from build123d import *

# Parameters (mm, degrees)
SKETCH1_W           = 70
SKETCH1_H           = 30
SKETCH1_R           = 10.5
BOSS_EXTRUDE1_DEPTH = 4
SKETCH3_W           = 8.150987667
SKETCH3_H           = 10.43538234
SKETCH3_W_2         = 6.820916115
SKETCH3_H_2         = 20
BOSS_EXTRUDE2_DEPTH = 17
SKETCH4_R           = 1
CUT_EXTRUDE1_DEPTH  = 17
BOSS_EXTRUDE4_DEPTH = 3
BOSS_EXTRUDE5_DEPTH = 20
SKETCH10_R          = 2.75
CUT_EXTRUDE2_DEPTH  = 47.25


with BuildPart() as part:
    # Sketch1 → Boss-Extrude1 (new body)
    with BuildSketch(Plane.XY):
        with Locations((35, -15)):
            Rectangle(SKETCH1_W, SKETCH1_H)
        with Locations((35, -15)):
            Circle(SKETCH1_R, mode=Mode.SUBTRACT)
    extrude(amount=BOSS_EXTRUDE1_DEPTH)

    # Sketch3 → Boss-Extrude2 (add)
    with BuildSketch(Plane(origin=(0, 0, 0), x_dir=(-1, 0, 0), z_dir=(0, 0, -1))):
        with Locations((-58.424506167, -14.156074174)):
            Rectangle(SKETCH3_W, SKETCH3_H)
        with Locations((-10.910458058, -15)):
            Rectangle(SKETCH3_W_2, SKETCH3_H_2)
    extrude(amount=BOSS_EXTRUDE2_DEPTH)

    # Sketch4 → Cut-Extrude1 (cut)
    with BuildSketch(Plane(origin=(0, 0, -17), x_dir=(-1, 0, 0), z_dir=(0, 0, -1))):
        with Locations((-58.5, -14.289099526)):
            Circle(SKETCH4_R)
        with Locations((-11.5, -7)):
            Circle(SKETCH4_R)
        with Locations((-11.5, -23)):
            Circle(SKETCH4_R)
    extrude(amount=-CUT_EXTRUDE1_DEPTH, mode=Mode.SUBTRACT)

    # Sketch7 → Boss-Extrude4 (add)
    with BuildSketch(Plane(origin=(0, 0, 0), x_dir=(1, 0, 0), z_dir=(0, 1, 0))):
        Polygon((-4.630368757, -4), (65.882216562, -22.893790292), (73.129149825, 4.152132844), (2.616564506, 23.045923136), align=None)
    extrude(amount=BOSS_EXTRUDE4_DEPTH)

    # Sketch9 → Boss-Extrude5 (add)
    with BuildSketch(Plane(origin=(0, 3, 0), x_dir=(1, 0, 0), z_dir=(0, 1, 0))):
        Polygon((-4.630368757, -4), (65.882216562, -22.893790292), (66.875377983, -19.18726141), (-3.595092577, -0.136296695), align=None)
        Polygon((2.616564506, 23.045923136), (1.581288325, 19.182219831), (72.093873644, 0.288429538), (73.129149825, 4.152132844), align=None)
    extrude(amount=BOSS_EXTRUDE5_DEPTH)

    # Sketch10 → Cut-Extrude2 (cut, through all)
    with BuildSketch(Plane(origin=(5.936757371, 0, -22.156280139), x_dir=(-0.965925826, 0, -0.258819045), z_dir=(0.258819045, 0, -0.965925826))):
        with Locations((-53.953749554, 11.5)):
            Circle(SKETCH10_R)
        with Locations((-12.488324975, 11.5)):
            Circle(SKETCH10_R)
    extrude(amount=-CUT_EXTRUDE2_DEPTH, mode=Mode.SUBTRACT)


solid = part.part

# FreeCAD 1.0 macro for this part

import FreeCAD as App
import Part
import Sketcher
Q = App.Units.Quantity


def add_polygon(sketch, points):
    """Adds a closed chain of lines whose ends are joined by coincident constraints."""
    first, n = sketch.GeometryCount, len(points)
    for a, b in zip(points, points[1:] + points[:1]):
        sketch.addGeometry(Part.LineSegment(App.Vector(*a, 0), App.Vector(*b, 0)), False)
    for i in range(n):
        sketch.addConstraint(Sketcher.Constraint("Coincident", first + i, 2, first + (i + 1) % n, 1))

doc = App.newDocument("Part")
body = doc.addObject("PartDesign::Body", "Body")

# Sketch on XY plane
sketch1 = body.newObject("Sketcher::SketchObject", "Sketch")
sketch1.AttachmentSupport = (doc.getObject("XY_Plane"), [""])
sketch1.MapMode = "FlatFace"
add_polygon(sketch1, [(0, 0), (0, -30), (70, -30), (70, 0)])  # lines 0-3
sketch1.addGeometry(Part.Circle(App.Vector(35, -15, 0), App.Vector(0, 0, 1), 10.5), False)  # 4
sketch1.addConstraint([
    Sketcher.Constraint("Vertical", 0),
    Sketcher.Constraint("Horizontal", 1),
    Sketcher.Constraint("Vertical", 2),
    Sketcher.Constraint("Horizontal", 3),
    Sketcher.Constraint("Coincident", 3, 2, -1, 1),
    Sketcher.Constraint("Diameter", 4, Q("21 mm")),
    Sketcher.Constraint("DistanceX", 1, 1, 1, 2, Q("70 mm")),
    Sketcher.Constraint("DistanceY", 0, 2, 0, 1, Q("30 mm")),
    Sketcher.Constraint("DistanceX", -1, 1, 4, 3, Q("35 mm")),
    Sketcher.Constraint("DistanceY", 4, 3, -1, 1, Q("15 mm")),
])
pad1 = body.newObject("PartDesign::Pad", "Pad")
pad1.Profile = sketch1
pad1.Length = 4

# Sketch on XY plane
sketch2 = body.newObject("Sketcher::SketchObject", "Sketch001")
sketch2.AttachmentSupport = (doc.getObject("XY_Plane"), [""])
sketch2.MapMode = "FlatFace"
add_polygon(sketch2, [(62.5, -8.938383), (62.5, -19.373765), (54.349012, -19.373765), (54.349012, -8.938383)])  # lines 0-3
add_polygon(sketch2, [(14.320916, -5), (14.320916, -25), (7.5, -25), (7.5, -5)])  # lines 4-7
sketch2.addConstraint([
    Sketcher.Constraint("Vertical", 0),
    Sketcher.Constraint("Horizontal", 1),
    Sketcher.Constraint("Vertical", 2),
    Sketcher.Constraint("Horizontal", 3),
    Sketcher.Constraint("Vertical", 4),
    Sketcher.Constraint("Horizontal", 5),
    Sketcher.Constraint("Vertical", 6),
    Sketcher.Constraint("Horizontal", 7),
    Sketcher.Constraint("DistanceY", 4, 2, 4, 1, Q("20 mm")),
    Sketcher.Constraint("DistanceY", 4, 2, -1, 1, Q("25 mm")),
    Sketcher.Constraint("DistanceX", 5, 2, 0, 2, Q("55 mm")),
    Sketcher.Constraint("DistanceX", -1, 1, 0, 2, Q("62.5 mm")),
    Sketcher.Constraint("DistanceX", 1, 2, 1, 1, Q("8.150988 mm")),
    Sketcher.Constraint("DistanceX", 5, 2, 5, 1, Q("6.820916 mm")),
    Sketcher.Constraint("DistanceY", 0, 2, 0, 1, Q("10.435382 mm")),
    Sketcher.Constraint("DistanceY", 0, 2, -1, 1, Q("19.373765 mm")),
])
pad2 = body.newObject("PartDesign::Pad", "Pad001")
pad2.Profile = sketch2
pad2.Length = 17
pad2.Reversed = True

# Sketch on XY plane
sketch3 = body.newObject("Sketcher::SketchObject", "Sketch002")
sketch3.AttachmentSupport = (doc.getObject("XY_Plane"), [""])
sketch3.MapMode = "FlatFace"
sketch3.AttachmentOffset = App.Placement(App.Vector(0, 0, -17), App.Rotation())
sketch3.addGeometry([
    Part.Circle(App.Vector(58.5, -14.2891, 0), App.Vector(0, 0, 1), 1),
    Part.Circle(App.Vector(11.5, -7, 0), App.Vector(0, 0, 1), 1),
    Part.Circle(App.Vector(11.5, -23, 0), App.Vector(0, 0, 1), 1),
], False)
sketch3.addConstraint([
    Sketcher.Constraint("Equal", 0, 1),
    Sketcher.Constraint("Equal", 1, 2),
    Sketcher.Constraint("Vertical", 1, 3, 2, 3),
    Sketcher.Constraint("Diameter", 0, Q("2 mm")),
    Sketcher.Constraint("DistanceY", 1, 3, -1, 1, Q("7 mm")),
    Sketcher.Constraint("DistanceY", 2, 3, -1, 1, Q("23 mm")),
    Sketcher.Constraint("DistanceX", 1, 3, 0, 3, Q("47 mm")),
    Sketcher.Constraint("DistanceX", -1, 1, 0, 3, Q("58.5 mm")),
    Sketcher.Constraint("DistanceY", 0, 3, -1, 1, Q("14.2891 mm")),
])
pocket1 = body.newObject("PartDesign::Pocket", "Pocket")
pocket1.Profile = sketch3
pocket1.Length = 17
pocket1.Reversed = True

# Sketch on XZ plane
sketch4 = body.newObject("Sketcher::SketchObject", "Sketch003")
sketch4.AttachmentSupport = (doc.getObject("XZ_Plane"), [""])
sketch4.MapMode = "FlatFace"
add_polygon(sketch4, [(-4.630369, 4), (65.882217, 22.89379), (73.12915, -4.152133), (2.616565, -23.045923)])  # lines 0-3
sketch4.addConstraint([
    Sketcher.Constraint("Perpendicular", 0, 1),
    Sketcher.Constraint("Perpendicular", 1, 2),
    Sketcher.Constraint("Perpendicular", 2, 3),
    Sketcher.Constraint("Angle", 0, Q("15 deg")),
    Sketcher.Constraint("Distance", 0, Q("73 mm")),
    Sketcher.Constraint("Distance", 1, Q("28 mm")),
    Sketcher.Constraint("DistanceY", -1, 1, 3, 2, Q("4 mm")),
    Sketcher.Constraint("DistanceX", -1, 1, 1, 2, Q("73.12915 mm")),
])
pad3 = body.newObject("PartDesign::Pad", "Pad002")
pad3.Profile = sketch4
pad3.Length = 3
pad3.Reversed = True

# Sketch on XZ plane
sketch5 = body.newObject("Sketcher::SketchObject", "Sketch004")
sketch5.AttachmentSupport = (doc.getObject("XZ_Plane"), [""])
sketch5.MapMode = "FlatFace"
sketch5.AttachmentOffset = App.Placement(App.Vector(0, 0, -3), App.Rotation())
add_polygon(sketch5, [(-4.630369, 4), (65.882217, 22.89379), (66.875378, 19.187261), (-3.595093, 0.136297)])  # lines 0-3
add_polygon(sketch5, [(2.616565, -23.045923), (1.581288, -19.18222), (72.093874, -0.28843), (73.12915, -4.152133)])  # lines 4-7
sketch5.addConstraint([
    Sketcher.Constraint("Perpendicular", 0, 1),
    Sketcher.Constraint("Parallel", 1, 3),
    Sketcher.Constraint("Parallel", 3, 4),
    Sketcher.Constraint("Perpendicular", 4, 5),
    Sketcher.Constraint("Perpendicular", 5, 6),
    Sketcher.Constraint("Perpendicular", 6, 7),
    Sketcher.Constraint("Equal", 3, 4),
    Sketcher.Constraint("Equal", 0, 5),
    Sketcher.Constraint("Angle", 0, Q("15 deg")),
    Sketcher.Constraint("Distance", 0, Q("73 mm")),
    Sketcher.Constraint("Distance", 3, Q("4 mm")),
    Sketcher.Constraint("DistanceY", -1, 1, 3, 2, Q("4 mm")),
    Sketcher.Constraint("Distance", 1, Q("3.837281 mm")),
    Sketcher.Constraint("DistanceX", 3, 2, -1, 1, Q("4.630369 mm")),
    Sketcher.Constraint("DistanceX", -1, 1, 4, 2, Q("1.581288 mm")),
    Sketcher.Constraint("DistanceY", 4, 2, -1, 1, Q("19.18222 mm")),
])
pad4 = body.newObject("PartDesign::Pad", "Pad003")
pad4.Profile = sketch5
pad4.Length = 20
pad4.Reversed = True

# Sketch on an angled plane
sketch6 = body.newObject("Sketcher::SketchObject", "Sketch005")
sketch6.Placement = App.Placement(App.Vector(5.936757, 0, -22.15628), App.Rotation(App.Vector(-0.965925826, 0, -0.258819045), App.Vector(0, 0.999999999, 0), App.Vector(0.258819045, 0, -0.965925826), "ZXY"))
sketch6.addGeometry([
    Part.Circle(App.Vector(-53.95375, 11.5, 0), App.Vector(0, 0, 1), 2.75),
    Part.Circle(App.Vector(-12.488325, 11.5, 0), App.Vector(0, 0, 1), 2.75),
], False)
sketch6.addConstraint([
    Sketcher.Constraint("Equal", 0, 1),
    Sketcher.Constraint("Horizontal", 0, 3, 1, 3),
    Sketcher.Constraint("Diameter", 0, Q("5.5 mm")),
    Sketcher.Constraint("DistanceY", -1, 1, 0, 3, Q("11.5 mm")),
    Sketcher.Constraint("DistanceX", 0, 3, -1, 1, Q("53.95375 mm")),
    Sketcher.Constraint("DistanceX", 1, 3, -1, 1, Q("12.488325 mm")),
])
pocket2 = body.newObject("PartDesign::Pocket", "Pocket001")
pocket2.Profile = sketch6
pocket2.Type = "ThroughAll"

doc.recompute()
